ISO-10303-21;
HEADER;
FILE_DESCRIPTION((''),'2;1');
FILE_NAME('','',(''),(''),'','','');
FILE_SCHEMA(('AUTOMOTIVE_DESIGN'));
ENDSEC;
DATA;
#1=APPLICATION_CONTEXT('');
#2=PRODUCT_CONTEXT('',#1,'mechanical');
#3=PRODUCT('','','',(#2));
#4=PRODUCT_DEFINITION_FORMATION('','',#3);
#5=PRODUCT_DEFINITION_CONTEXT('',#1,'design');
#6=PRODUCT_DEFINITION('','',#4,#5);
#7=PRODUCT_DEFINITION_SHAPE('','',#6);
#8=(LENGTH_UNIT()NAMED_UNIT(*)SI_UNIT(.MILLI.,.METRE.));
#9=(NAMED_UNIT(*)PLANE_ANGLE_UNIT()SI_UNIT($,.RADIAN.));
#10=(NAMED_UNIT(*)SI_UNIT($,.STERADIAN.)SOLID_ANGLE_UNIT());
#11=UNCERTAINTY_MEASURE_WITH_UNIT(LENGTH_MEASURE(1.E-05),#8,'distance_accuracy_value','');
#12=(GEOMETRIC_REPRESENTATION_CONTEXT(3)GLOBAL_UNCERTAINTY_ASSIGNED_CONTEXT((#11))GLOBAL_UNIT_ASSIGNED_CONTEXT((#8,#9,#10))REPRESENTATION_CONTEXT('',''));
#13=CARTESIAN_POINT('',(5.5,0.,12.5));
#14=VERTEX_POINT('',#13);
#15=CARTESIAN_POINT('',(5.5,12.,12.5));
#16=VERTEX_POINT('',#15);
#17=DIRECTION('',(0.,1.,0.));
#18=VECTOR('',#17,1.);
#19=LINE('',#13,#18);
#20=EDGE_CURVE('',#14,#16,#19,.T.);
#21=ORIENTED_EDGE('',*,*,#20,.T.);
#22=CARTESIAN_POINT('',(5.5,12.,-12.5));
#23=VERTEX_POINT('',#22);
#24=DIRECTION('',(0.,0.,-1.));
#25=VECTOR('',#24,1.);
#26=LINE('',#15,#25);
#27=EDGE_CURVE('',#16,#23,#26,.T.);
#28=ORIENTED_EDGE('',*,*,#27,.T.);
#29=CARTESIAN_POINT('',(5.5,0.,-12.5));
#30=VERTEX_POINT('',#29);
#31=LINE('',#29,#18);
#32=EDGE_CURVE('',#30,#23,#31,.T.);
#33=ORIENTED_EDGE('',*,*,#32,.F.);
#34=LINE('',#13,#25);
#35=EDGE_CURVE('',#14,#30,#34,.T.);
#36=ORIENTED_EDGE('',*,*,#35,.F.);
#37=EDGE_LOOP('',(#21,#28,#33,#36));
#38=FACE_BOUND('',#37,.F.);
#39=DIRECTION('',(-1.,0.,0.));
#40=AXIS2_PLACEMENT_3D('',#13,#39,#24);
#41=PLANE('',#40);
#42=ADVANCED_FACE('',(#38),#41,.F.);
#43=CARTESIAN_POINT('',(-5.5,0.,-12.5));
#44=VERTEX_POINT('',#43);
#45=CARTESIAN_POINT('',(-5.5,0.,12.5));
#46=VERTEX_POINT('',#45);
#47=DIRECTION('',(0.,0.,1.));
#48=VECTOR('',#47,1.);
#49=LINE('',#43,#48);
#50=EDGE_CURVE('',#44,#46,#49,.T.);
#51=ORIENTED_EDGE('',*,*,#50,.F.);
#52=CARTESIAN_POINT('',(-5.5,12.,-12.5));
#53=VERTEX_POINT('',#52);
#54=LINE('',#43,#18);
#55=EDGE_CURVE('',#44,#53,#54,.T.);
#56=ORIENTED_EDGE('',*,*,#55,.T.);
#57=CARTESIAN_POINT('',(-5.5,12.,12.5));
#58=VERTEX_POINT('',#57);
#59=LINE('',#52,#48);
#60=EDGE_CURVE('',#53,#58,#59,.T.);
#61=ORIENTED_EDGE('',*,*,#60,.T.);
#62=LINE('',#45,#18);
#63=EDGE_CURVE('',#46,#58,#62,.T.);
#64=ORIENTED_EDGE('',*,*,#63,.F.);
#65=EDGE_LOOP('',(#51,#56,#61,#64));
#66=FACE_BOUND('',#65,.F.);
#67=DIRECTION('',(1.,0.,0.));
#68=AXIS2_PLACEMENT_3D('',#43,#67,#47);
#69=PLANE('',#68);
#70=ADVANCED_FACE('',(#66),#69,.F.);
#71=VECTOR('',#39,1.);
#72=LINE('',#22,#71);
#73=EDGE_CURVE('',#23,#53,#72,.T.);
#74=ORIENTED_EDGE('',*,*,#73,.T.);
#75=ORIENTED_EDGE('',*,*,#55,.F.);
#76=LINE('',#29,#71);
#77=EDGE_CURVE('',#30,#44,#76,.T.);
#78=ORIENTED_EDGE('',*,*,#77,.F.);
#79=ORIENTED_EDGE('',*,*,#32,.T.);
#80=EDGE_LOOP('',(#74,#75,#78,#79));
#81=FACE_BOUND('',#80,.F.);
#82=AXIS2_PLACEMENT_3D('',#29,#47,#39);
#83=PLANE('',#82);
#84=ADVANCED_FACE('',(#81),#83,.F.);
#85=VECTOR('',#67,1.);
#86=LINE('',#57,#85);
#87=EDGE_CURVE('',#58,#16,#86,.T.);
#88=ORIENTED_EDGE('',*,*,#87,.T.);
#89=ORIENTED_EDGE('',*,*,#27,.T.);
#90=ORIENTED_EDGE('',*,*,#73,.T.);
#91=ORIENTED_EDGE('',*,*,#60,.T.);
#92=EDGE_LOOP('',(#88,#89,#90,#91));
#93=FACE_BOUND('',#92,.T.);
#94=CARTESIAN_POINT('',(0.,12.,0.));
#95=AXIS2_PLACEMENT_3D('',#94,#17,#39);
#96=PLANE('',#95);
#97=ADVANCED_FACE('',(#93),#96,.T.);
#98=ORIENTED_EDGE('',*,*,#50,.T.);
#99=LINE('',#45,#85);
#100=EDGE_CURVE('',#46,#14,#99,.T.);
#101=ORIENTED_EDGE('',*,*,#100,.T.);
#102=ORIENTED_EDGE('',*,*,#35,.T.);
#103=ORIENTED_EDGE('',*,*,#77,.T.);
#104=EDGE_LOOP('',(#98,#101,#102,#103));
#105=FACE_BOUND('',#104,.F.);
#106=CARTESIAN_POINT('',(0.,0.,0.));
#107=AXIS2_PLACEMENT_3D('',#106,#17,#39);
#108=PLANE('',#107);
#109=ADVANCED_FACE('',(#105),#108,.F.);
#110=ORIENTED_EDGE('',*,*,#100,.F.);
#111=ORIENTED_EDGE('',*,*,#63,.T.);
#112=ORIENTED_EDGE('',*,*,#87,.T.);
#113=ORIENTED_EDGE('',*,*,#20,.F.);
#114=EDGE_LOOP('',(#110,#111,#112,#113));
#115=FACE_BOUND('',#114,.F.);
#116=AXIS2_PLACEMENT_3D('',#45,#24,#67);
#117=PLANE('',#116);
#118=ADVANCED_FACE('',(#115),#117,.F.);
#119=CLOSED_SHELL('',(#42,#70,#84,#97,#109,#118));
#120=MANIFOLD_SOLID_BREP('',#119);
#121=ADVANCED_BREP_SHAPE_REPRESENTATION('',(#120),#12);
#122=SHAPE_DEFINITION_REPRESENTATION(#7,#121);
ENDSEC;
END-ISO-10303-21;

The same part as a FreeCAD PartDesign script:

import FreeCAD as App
import Part
import Sketcher


def add_polygon(sketch, points):
    """Adds a closed chain of lines whose ends are joined by coincident constraints."""
    first, n = sketch.GeometryCount, len(points)
    for a, b in zip(points, points[1:] + points[:1]):
        sketch.addGeometry(Part.LineSegment(App.Vector(*a, 0), App.Vector(*b, 0)), False)
    for i in range(n):
        sketch.addConstraint(Sketcher.Constraint("Coincident", first + i, 2, first + (i + 1) % n, 1))

doc = App.newDocument("Part")
body = doc.addObject("PartDesign::Body", "Body")

# Sketch on XZ plane
sketch1 = body.newObject("Sketcher::SketchObject", "Sketch")
sketch1.AttachmentSupport = (doc.getObject("XZ_Plane"), [""])
sketch1.MapMode = "FlatFace"
add_polygon(sketch1, [(-5.5, -12.5), (-5.5, 12.5), (5.5, 12.5), (5.5, -12.5)])  # lines 0-3
sketch1.addConstraint([
    Sketcher.Constraint("Vertical", 0),
    Sketcher.Constraint("Horizontal", 1),
    Sketcher.Constraint("Vertical", 2),
    Sketcher.Constraint("Horizontal", 3),
    Sketcher.Constraint("Symmetric", 0, 2, 2, 2, -1, 1),
    Sketcher.Constraint("DistanceX", 1, 1, 1, 2, 11.0),
    Sketcher.Constraint("DistanceY", 0, 1, 0, 2, 25.0),
])
pad1 = body.newObject("PartDesign::Pad", "Pad")
pad1.Profile = sketch1
pad1.Length = 12
pad1.Reversed = True

doc.recompute()
